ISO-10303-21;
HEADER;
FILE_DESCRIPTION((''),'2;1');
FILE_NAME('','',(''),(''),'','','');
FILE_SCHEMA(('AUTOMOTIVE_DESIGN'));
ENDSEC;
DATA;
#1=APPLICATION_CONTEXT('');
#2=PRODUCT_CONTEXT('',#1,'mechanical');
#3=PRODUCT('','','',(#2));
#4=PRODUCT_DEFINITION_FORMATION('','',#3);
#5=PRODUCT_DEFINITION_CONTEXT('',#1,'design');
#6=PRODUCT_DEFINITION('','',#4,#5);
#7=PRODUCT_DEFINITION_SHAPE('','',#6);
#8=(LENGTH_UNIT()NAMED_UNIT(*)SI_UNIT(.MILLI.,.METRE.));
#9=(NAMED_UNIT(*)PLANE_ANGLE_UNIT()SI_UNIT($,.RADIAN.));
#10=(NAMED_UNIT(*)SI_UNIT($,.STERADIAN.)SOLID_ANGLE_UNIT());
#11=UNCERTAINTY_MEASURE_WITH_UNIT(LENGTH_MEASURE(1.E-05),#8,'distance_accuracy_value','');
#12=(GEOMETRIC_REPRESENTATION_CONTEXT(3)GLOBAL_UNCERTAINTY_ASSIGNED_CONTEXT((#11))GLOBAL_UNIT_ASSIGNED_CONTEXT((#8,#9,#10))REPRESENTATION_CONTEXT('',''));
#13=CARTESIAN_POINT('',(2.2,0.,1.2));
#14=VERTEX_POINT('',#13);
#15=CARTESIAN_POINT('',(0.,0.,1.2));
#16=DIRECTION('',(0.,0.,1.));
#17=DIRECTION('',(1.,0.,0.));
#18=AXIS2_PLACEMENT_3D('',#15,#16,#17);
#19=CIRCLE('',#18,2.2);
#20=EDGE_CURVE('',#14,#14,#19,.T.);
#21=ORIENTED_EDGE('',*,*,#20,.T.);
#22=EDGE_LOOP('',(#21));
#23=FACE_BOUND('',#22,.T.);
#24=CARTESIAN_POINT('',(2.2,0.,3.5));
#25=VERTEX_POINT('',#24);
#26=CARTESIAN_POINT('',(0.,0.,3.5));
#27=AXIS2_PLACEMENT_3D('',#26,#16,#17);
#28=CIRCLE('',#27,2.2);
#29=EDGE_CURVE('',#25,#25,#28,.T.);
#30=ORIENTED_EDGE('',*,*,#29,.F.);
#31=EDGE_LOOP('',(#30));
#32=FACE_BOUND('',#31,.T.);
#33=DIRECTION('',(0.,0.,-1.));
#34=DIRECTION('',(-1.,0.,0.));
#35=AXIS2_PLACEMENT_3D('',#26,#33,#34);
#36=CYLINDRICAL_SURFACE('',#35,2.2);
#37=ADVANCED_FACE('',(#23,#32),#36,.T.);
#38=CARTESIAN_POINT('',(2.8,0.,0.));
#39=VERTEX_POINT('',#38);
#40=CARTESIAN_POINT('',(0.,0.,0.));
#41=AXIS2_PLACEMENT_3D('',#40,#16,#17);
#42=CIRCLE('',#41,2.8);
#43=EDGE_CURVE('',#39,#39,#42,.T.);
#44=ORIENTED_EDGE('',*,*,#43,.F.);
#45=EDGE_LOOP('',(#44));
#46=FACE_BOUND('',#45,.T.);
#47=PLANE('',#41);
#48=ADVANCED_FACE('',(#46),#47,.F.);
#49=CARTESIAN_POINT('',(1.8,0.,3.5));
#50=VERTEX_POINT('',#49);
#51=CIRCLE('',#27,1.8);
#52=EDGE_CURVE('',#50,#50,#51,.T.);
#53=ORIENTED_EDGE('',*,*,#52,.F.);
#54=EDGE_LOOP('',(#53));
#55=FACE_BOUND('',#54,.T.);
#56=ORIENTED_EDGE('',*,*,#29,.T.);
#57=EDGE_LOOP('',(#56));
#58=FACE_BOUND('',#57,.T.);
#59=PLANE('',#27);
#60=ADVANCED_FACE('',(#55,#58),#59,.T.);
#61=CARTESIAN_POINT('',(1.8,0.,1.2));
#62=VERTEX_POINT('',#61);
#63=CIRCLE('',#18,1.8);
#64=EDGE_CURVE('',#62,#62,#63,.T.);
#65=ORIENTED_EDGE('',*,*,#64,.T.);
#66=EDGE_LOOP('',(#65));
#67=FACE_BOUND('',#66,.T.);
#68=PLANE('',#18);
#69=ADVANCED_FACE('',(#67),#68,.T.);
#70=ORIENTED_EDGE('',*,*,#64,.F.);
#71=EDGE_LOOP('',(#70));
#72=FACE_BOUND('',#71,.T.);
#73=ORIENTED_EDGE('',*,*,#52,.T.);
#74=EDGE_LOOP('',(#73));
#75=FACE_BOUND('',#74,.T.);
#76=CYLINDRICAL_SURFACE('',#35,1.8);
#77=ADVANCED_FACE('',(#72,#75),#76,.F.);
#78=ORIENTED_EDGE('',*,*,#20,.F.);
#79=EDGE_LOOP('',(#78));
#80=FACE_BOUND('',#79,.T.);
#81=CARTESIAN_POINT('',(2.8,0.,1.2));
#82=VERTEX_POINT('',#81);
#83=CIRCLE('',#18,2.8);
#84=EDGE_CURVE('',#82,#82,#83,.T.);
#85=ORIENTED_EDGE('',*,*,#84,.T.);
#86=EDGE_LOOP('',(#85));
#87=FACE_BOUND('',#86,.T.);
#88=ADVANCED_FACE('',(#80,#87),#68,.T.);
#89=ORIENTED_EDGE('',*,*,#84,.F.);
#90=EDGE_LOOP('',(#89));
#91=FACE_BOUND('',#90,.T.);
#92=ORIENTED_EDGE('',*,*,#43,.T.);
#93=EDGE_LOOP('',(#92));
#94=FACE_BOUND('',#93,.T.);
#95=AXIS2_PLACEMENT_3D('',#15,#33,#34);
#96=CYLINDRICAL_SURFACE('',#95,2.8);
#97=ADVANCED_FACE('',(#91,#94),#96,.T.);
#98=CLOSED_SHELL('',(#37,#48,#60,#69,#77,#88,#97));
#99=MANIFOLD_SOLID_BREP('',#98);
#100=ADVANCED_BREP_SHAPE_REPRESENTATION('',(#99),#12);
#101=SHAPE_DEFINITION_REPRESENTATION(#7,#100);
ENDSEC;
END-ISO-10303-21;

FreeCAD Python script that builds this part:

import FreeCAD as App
import Part
import Sketcher

doc = App.newDocument("Part")
body = doc.addObject("PartDesign::Body", "Body")

# Sketch on XY plane
sketch1 = doc.addObject("Sketcher::SketchObject", "Sketch")
body.addObject(sketch1)
sketch1.AttachmentSupport = (doc.XY_Plane, [""])
sketch1.MapMode = "FlatFace"
sketch1.addGeometry([
    Part.Circle(App.Vector(0, 0, 0), App.Vector(0, 0, 1), 2.2),
    Part.Circle(App.Vector(0, 0, 0), App.Vector(0, 0, 1), 1.8),
], False)
sketch1.addConstraint([
    Sketcher.Constraint("Coincident", 0, 3, -1, 1),
    Sketcher.Constraint("Coincident", 1, 3, -1, 1),
    Sketcher.Constraint("Diameter", 0, 4.4),
    Sketcher.Constraint("Diameter", 1, 3.6),
])
pad1 = doc.addObject("PartDesign::Pad", "Pad")
body.addObject(pad1)
pad1.Profile = sketch1
pad1.Length = 3.5

# Sketch on XY plane
sketch2 = doc.addObject("Sketcher::SketchObject", "Sketch001")
body.addObject(sketch2)
sketch2.AttachmentSupport = (doc.XY_Plane, [""])
sketch2.MapMode = "FlatFace"
sketch2.addGeometry(Part.Circle(App.Vector(0, 0, 0), App.Vector(0, 0, 1), 2.8), False)
sketch2.addConstraint([
    Sketcher.Constraint("Coincident", 0, 3, -1, 1),
    Sketcher.Constraint("Diameter", 0, 5.6),
])
pad2 = doc.addObject("PartDesign::Pad", "Pad001")
body.addObject(pad2)
pad2.Profile = sketch2
pad2.Length = 1.2

doc.recompute()
